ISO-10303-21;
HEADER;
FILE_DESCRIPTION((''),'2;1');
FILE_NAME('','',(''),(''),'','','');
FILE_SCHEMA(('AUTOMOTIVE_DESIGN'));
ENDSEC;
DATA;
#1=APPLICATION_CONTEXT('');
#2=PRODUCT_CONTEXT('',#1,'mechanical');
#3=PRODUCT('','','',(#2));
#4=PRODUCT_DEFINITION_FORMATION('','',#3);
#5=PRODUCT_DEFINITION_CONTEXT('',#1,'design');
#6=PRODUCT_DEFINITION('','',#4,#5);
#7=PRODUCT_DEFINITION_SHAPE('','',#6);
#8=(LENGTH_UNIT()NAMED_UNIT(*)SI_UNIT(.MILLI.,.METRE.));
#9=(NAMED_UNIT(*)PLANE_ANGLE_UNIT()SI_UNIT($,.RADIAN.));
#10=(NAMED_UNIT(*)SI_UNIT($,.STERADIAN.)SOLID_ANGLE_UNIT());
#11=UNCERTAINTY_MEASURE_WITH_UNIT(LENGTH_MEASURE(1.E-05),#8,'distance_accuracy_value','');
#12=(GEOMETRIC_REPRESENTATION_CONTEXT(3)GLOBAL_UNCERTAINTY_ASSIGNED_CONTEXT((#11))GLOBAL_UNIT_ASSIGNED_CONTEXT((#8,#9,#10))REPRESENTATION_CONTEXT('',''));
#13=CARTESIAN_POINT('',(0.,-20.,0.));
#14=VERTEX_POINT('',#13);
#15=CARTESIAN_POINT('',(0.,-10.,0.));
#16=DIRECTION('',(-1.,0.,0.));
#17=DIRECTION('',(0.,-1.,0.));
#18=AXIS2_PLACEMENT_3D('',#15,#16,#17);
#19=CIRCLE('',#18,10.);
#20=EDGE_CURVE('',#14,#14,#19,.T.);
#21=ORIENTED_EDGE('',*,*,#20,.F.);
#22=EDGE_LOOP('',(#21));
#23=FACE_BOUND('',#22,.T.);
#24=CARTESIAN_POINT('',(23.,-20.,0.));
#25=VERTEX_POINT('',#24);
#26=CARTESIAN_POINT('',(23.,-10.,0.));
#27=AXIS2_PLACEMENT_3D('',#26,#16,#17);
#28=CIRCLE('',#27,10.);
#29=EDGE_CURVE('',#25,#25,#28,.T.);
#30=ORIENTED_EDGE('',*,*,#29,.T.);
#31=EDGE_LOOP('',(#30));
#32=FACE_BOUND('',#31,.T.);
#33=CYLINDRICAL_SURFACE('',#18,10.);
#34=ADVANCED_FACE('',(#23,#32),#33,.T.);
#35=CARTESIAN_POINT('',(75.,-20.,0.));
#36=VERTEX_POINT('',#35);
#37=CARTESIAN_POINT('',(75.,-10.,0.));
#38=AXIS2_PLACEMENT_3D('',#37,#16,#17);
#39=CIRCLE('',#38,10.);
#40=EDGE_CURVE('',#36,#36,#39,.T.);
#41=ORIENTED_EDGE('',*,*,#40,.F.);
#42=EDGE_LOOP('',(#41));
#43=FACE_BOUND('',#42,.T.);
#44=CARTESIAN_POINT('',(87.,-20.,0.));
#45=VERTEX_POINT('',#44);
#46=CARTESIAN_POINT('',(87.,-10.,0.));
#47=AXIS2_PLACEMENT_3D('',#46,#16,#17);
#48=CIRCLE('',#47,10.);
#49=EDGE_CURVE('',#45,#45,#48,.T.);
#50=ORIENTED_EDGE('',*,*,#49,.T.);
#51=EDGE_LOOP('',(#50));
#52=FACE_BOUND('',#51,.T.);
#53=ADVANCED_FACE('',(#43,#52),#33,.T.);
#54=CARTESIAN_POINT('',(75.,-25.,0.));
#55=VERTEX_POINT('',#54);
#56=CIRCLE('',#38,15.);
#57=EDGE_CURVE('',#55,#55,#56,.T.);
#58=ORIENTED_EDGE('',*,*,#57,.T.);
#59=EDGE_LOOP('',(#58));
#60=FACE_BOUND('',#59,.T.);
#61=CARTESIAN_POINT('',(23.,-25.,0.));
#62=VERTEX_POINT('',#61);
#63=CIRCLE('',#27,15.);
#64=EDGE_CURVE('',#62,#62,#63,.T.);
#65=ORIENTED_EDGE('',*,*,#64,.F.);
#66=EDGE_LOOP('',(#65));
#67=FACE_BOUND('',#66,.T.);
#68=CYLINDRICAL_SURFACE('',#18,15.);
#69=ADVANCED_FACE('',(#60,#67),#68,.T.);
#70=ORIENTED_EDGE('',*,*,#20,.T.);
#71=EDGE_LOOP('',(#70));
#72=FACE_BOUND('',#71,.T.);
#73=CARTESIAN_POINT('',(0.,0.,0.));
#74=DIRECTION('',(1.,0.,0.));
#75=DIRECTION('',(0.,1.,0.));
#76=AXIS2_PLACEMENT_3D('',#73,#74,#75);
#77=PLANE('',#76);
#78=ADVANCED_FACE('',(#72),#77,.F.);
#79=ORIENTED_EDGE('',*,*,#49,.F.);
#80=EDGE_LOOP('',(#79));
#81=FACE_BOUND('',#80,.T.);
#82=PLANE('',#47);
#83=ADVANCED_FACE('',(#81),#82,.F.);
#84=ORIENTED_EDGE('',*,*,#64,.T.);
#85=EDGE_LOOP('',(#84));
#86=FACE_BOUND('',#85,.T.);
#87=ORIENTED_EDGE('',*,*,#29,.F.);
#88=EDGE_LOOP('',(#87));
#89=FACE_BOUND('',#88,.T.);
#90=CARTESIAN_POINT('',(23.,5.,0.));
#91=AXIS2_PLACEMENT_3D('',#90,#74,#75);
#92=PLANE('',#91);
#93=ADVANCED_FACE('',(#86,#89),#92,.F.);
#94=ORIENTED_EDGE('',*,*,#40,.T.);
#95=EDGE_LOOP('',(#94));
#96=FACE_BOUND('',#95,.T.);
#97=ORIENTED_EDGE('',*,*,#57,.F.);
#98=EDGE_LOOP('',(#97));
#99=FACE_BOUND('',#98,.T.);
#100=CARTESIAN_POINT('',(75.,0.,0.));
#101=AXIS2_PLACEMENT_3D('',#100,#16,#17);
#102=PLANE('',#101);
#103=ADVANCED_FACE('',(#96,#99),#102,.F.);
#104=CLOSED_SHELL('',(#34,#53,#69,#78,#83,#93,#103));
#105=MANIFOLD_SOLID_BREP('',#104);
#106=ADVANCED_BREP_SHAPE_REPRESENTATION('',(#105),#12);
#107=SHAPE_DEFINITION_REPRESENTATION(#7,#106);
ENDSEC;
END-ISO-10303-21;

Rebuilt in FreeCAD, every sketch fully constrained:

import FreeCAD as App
import Part
import Sketcher
from FreeCAD import Vector


def add_polygon(sketch, points):
    """Adds a closed chain of lines whose ends are joined by coincident constraints."""
    first, n = sketch.GeometryCount, len(points)
    for a, b in zip(points, points[1:] + points[:1]):
        sketch.addGeometry(Part.LineSegment(App.Vector(*a, 0), App.Vector(*b, 0)), False)
    for i in range(n):
        sketch.addConstraint(Sketcher.Constraint("Coincident", first + i, 2, first + (i + 1) % n, 1))

doc = App.newDocument("Part")
body = doc.addObject("PartDesign::Body", "Body")

# Sketch on XY plane
sketch1 = doc.addObject("Sketcher::SketchObject", "Sketch")
body.addObject(sketch1)
sketch1.AttachmentSupport = (doc.XY_Plane, [""])
sketch1.MapMode = "FlatFace"
add_polygon(sketch1, [(0, 0), (0, -10), (87, -10), (87, 0), (75, 0), (75, 5), (23, 5), (23, 0)])  # lines 0-7
sketch1.addGeometry(Part.LineSegment(Vector(0, -10, 0), Vector(87, -10, 0)), True)  # axis
sketch1.addConstraint([
    Sketcher.Constraint("Vertical", 0),
    Sketcher.Constraint("Horizontal", 1),
    Sketcher.Constraint("Vertical", 2),
    Sketcher.Constraint("Horizontal", 3),
    Sketcher.Constraint("Vertical", 4),
    Sketcher.Constraint("Horizontal", 5),
    Sketcher.Constraint("Vertical", 6),
    Sketcher.Constraint("Horizontal", 7),
    Sketcher.Constraint("Horizontal", 8),
    Sketcher.Constraint("Coincident", 7, 2, -1, 1),
    Sketcher.Constraint("Coincident", 8, 1, 0, 2),
    Sketcher.Constraint("PointOnObject", 2, 2, -1),
    Sketcher.Constraint("Vertical", 2, 2, 8, 2),
    Sketcher.Constraint("DistanceX", 1, 1, 1, 2, 87.0),
    Sketcher.Constraint("DistanceX", 3, 2, 3, 1, 12.0),
    Sketcher.Constraint("DistanceX", 5, 2, 5, 1, 52.0),
    Sketcher.Constraint("DistanceY", 0, 2, 0, 1, 10.0),
    Sketcher.Constraint("DistanceY", 4, 1, 4, 2, 5.0),
])
revolution = doc.addObject("PartDesign::Revolution", "Revolution")
body.addObject(revolution)
revolution.Profile = sketch1
revolution.ReferenceAxis = (sketch1, ["Axis0"])
revolution.Angle = 360

doc.recompute()
